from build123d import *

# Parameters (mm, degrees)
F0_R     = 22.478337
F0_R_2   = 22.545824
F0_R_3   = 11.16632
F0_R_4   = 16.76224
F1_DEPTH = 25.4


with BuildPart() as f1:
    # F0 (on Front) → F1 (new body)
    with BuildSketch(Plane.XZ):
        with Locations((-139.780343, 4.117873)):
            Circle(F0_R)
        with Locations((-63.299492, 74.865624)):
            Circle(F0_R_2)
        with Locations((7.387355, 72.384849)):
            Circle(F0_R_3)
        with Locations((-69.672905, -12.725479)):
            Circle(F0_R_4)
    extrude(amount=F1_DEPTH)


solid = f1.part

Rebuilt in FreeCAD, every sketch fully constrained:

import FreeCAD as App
import Part
import Sketcher
Q = App.Units.Quantity

doc = App.newDocument("Part")
body = doc.addObject("PartDesign::Body", "Body")
body.AllowCompound = True

sketch1 = body.newObject("Sketcher::SketchObject", "Sketch")
sketch1.AttachmentSupport = (doc.getObject("XZ_Plane"), [""])
sketch1.MapMode = "FlatFace"
sketch1.addGeometry([
    Part.Circle(App.Vector(-140, 4, 0), App.Vector(0, 0, 1), 22),
    Part.Circle(App.Vector(-63, 75, 0), App.Vector(0, 0, 1), 23),
    Part.Circle(App.Vector(7, 72, 0), App.Vector(0, 0, 1), 11),
    Part.Circle(App.Vector(-70, -13, 0), App.Vector(0, 0, 1), 17),
], False)
sketch1.addConstraint([
    Sketcher.Constraint("Diameter", 2, Q("22.33264 mm")),
    Sketcher.Constraint("Diameter", 3, Q("33.52448 mm")),
    Sketcher.Constraint("Diameter", 0, Q("44.956674 mm")),
    Sketcher.Constraint("Diameter", 1, Q("45.091648 mm")),
    Sketcher.Constraint("DistanceX", 0, 3, 2, 3, Q("147.167698 mm")),
    Sketcher.Constraint("DistanceY", -1, 1, 2, 3, Q("72.384849 mm")),
    Sketcher.Constraint("DistanceY", 3, 3, -1, 1, Q("12.725479 mm")),
    Sketcher.Constraint("DistanceX", 0, 3, 1, 3, Q("76.480851 mm")),
    Sketcher.Constraint("DistanceY", 0, 3, 1, 3, Q("70.747751 mm")),
    Sketcher.Constraint("DistanceY", 3, 3, 0, 3, Q("16.843352 mm")),
    Sketcher.Constraint("DistanceX", 3, 3, 2, 3, Q("77.06026 mm")),
    Sketcher.Constraint("DistanceX", 0, 3, -1, 1, Q("139.780343 mm")),
])
pad1 = body.newObject("PartDesign::Pad", "Pad")
pad1.Profile = sketch1
pad1.Length = Q("1 in")

doc.recompute()
